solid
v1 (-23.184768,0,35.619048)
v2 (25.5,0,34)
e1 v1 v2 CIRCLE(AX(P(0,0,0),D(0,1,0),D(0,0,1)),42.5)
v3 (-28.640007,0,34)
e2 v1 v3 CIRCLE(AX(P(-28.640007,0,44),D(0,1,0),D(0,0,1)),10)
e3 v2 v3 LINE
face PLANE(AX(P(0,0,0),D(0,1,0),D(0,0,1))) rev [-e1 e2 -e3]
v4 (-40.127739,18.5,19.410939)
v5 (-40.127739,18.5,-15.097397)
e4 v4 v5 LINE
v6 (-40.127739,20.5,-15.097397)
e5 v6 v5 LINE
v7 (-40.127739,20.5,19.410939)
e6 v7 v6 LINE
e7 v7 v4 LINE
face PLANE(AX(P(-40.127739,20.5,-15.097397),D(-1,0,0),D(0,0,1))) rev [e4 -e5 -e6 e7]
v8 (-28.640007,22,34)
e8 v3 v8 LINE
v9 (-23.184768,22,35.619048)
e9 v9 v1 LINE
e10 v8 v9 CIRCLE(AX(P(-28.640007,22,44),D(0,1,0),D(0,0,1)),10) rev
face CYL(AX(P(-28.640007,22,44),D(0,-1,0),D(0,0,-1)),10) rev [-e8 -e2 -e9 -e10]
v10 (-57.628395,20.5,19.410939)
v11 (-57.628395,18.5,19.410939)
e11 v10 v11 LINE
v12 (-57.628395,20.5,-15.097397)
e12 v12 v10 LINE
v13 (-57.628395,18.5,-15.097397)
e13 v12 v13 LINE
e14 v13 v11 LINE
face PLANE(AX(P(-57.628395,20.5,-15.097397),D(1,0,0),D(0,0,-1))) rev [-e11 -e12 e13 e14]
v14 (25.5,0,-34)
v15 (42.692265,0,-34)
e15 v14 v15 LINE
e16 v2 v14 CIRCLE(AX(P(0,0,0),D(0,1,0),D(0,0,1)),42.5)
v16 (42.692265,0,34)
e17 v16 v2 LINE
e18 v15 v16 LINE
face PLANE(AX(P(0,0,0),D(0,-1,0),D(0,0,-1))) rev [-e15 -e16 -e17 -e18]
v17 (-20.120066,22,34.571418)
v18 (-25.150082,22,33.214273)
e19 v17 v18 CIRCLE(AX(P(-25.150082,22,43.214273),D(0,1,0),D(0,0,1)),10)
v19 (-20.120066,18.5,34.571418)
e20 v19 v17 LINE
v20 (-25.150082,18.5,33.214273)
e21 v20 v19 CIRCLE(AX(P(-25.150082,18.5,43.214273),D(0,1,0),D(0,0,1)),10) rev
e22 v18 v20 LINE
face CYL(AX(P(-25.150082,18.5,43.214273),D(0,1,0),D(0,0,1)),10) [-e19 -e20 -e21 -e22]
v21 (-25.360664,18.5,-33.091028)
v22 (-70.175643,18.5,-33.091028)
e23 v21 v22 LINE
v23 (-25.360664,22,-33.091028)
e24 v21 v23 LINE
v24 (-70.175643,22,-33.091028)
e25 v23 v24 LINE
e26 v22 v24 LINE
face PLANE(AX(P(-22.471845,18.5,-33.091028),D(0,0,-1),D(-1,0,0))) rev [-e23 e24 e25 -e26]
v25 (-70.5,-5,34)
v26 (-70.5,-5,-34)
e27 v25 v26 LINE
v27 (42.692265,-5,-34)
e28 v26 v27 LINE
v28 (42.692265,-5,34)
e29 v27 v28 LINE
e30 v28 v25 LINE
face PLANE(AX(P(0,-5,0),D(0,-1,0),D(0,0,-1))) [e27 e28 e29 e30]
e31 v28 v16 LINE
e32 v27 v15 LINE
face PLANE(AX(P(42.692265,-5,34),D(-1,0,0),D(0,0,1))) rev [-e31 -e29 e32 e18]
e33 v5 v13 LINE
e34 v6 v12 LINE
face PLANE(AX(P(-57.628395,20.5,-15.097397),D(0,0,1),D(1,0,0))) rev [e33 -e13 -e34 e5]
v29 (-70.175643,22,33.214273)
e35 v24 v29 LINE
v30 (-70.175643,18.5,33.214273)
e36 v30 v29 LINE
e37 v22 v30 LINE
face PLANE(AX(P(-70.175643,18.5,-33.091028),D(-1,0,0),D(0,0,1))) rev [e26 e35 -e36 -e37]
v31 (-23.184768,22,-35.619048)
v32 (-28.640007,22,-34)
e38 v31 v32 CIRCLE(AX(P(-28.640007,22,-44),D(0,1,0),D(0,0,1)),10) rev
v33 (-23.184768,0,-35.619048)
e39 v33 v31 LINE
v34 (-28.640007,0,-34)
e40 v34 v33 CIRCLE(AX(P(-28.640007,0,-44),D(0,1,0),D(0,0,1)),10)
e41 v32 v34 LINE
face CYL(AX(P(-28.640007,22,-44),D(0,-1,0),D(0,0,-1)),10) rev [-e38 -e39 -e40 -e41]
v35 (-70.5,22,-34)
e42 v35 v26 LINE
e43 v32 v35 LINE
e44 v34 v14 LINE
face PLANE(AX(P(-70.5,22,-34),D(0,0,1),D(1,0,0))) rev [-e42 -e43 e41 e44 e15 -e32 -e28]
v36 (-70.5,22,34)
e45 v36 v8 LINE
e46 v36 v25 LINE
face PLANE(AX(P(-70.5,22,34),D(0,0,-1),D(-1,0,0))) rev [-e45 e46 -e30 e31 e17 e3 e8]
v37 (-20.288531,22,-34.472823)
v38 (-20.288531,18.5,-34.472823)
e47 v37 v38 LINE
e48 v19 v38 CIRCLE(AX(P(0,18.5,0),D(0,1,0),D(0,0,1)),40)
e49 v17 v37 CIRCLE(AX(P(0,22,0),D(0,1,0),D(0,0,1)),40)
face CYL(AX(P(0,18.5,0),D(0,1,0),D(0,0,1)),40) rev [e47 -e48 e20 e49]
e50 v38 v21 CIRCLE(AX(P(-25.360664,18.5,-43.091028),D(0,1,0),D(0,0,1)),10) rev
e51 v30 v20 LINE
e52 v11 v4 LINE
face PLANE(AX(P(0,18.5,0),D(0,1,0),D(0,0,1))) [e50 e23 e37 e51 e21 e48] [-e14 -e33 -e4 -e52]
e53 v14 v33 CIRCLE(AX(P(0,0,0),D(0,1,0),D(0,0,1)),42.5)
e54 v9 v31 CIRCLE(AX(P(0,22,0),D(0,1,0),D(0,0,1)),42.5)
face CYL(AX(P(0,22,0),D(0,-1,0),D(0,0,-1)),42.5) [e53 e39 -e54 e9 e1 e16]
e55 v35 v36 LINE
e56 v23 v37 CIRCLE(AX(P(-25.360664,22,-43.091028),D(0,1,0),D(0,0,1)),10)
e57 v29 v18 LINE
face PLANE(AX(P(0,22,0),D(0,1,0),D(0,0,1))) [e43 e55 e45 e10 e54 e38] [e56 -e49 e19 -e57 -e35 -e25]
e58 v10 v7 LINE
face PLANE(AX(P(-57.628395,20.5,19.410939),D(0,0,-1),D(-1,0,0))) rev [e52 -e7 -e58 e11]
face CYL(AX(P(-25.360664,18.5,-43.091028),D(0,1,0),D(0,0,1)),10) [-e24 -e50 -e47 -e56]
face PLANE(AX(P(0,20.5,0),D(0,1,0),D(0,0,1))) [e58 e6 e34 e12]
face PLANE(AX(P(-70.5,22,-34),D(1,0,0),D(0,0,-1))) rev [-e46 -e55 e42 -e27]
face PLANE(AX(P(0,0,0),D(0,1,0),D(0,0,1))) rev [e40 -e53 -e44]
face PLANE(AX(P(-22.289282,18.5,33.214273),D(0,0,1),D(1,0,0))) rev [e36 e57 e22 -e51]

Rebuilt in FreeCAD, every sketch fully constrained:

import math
import FreeCAD as App
import Part
import Sketcher
from FreeCAD import Vector


def edges_at(feature, points):
    """Names of the edges that pass closest to the given points."""
    edges = feature.Shape.Edges
    near = lambda p: min(range(len(edges)), key=lambda i: edges[i].distToShape(Part.Vertex(*p))[0])
    return sorted({f"Edge{near(p) + 1}" for p in points})


def add_polygon(sketch, points):
    """Adds a closed chain of lines whose ends are joined by coincident constraints."""
    first, n = sketch.GeometryCount, len(points)
    for a, b in zip(points, points[1:] + points[:1]):
        sketch.addGeometry(Part.LineSegment(App.Vector(*a, 0), App.Vector(*b, 0)), False)
    for i in range(n):
        sketch.addConstraint(Sketcher.Constraint("Coincident", first + i, 2, first + (i + 1) % n, 1))

doc = App.newDocument("Part")
body = doc.addObject("PartDesign::Body", "Body")

# Sketch on XZ plane
sketch1 = doc.addObject("Sketcher::SketchObject", "Sketch")
body.addObject(sketch1)
sketch1.AttachmentSupport = (doc.XZ_Plane, [""])
sketch1.MapMode = "FlatFace"
sketch1.addGeometry(Part.LineSegment(Vector(-26, -34, 0), Vector(-70, -34, 0)), False)
sketch1.addGeometry(Part.LineSegment(Vector(-70, -34, 0), Vector(-70, 34, 0)), False)
sketch1.addGeometry(Part.LineSegment(Vector(-70, 34, 0), Vector(-26, 34, 0)), False)
sketch1.addGeometry(Part.ArcOfCircle(Part.Circle(Vector(0, 0, 0), Vector(0, 0, 1), 42), math.radians(-127), math.radians(127)), False)
sketch1.addConstraint(Sketcher.Constraint("Coincident", 0, 2, 1, 1))
sketch1.addConstraint(Sketcher.Constraint("Coincident", 1, 2, 2, 1))
sketch1.addConstraint(Sketcher.Constraint("Coincident", 2, 2, 3, 2))
sketch1.addConstraint(Sketcher.Constraint("Coincident", 3, 1, 0, 1))
sketch1.addConstraint(Sketcher.Constraint("Horizontal", 0))
sketch1.addConstraint(Sketcher.Constraint("Vertical", 1))
sketch1.addConstraint(Sketcher.Constraint("Horizontal", 2))
sketch1.addConstraint(Sketcher.Constraint("Coincident", 3, 3, -1, 1))
sketch1.addConstraint(Sketcher.Constraint("Vertical", 2, 2, 3, 1))
sketch1.addConstraint(Sketcher.Constraint("Radius", 3, 42.5))
sketch1.addConstraint(Sketcher.Constraint("DistanceX", 0, 2, 0, 1, 45.0))
sketch1.addConstraint(Sketcher.Constraint("DistanceY", 1, 1, 1, 2, 68.0))
pad1 = doc.addObject("PartDesign::Pad", "Pad")
body.addObject(pad1)
pad1.Profile = sketch1
pad1.Length = 22
pad1.Reversed = True
doc.recompute()

fillet = doc.addObject("PartDesign::Fillet", "Fillet")
body.addObject(fillet)
fillet.Base = (pad1, edges_at(pad1, [(-25.5, 11, -34), (-25.5, 11, 34)]))
fillet.Radius = 10

# Sketch on XZ plane
sketch2 = doc.addObject("Sketcher::SketchObject", "Sketch001")
body.addObject(sketch2)
sketch2.AttachmentSupport = (doc.XZ_Plane, [""])
sketch2.MapMode = "FlatFace"
sketch2.AttachmentOffset = App.Placement(Vector(0, 0, -22), App.Rotation())
sketch2.addGeometry(Part.LineSegment(Vector(-22, -33, 0), Vector(-70, -33, 0)), False)
sketch2.addGeometry(Part.LineSegment(Vector(-70, -33, 0), Vector(-70, 33, 0)), False)
sketch2.addGeometry(Part.LineSegment(Vector(-70, 33, 0), Vector(-22, 33, 0)), False)
sketch2.addGeometry(Part.ArcOfCircle(Part.Circle(Vector(0, 0, 0), Vector(0, 0, 1), 40), math.radians(-124), math.radians(124)), False)
sketch2.addConstraint(Sketcher.Constraint("Coincident", 0, 2, 1, 1))
sketch2.addConstraint(Sketcher.Constraint("Coincident", 1, 2, 2, 1))
sketch2.addConstraint(Sketcher.Constraint("Coincident", 2, 2, 3, 2))
sketch2.addConstraint(Sketcher.Constraint("Coincident", 3, 1, 0, 1))
sketch2.addConstraint(Sketcher.Constraint("Horizontal", 0))
sketch2.addConstraint(Sketcher.Constraint("Vertical", 1))
sketch2.addConstraint(Sketcher.Constraint("Horizontal", 2))
sketch2.addConstraint(Sketcher.Constraint("Coincident", 3, 3, -1, 1))
sketch2.addConstraint(Sketcher.Constraint("Radius", 3, 40.0))
sketch2.addConstraint(Sketcher.Constraint("DistanceY", 1, 1, 1, 2, 66.305301))
sketch2.addConstraint(Sketcher.Constraint("DistanceX", 2, 1, 2, 2, 47.886361))
sketch2.addConstraint(Sketcher.Constraint("DistanceX", 0, 2, 0, 1, 47.703798))
pocket1 = doc.addObject("PartDesign::Pocket", "Pocket")
body.addObject(pocket1)
pocket1.Profile = sketch2
pocket1.Length = 3.5
pocket1.Reversed = True
doc.recompute()

fillet2 = doc.addObject("PartDesign::Fillet", "Fillet001")
body.addObject(fillet2)
fillet2.Base = (pocket1, edges_at(pocket1, [(-22.472, 20.25, -33.091), (-22.289, 20.25, 33.214)]))
fillet2.Radius = 10

# Sketch on XZ plane
sketch3 = doc.addObject("Sketcher::SketchObject", "Sketch002")
body.addObject(sketch3)
sketch3.AttachmentSupport = (doc.XZ_Plane, [""])
sketch3.MapMode = "FlatFace"
sketch3.AttachmentOffset = App.Placement(Vector(0, 0, -18.5), App.Rotation())
add_polygon(sketch3, [(-58, -15), (-58, 19), (-40, 19), (-40, -15)])  # lines 0-3
sketch3.addConstraint(Sketcher.Constraint("Vertical", 0))
sketch3.addConstraint(Sketcher.Constraint("Horizontal", 1))
sketch3.addConstraint(Sketcher.Constraint("Vertical", 2))
sketch3.addConstraint(Sketcher.Constraint("Horizontal", 3))
sketch3.addConstraint(Sketcher.Constraint("DistanceX", 1, 1, 1, 2, 17.500656))
sketch3.addConstraint(Sketcher.Constraint("DistanceY", 0, 1, 0, 2, 34.508335))
sketch3.addConstraint(Sketcher.Constraint("DistanceY", -1, 1, 0, 2, 19.410939))
sketch3.addConstraint(Sketcher.Constraint("DistanceX", 1, 2, -1, 1, 40.127739))
pad2 = doc.addObject("PartDesign::Pad", "Pad001")
body.addObject(pad2)
pad2.Profile = sketch3
pad2.Length = 2
pad2.Reversed = True

# Sketch on XZ plane
sketch4 = doc.addObject("Sketcher::SketchObject", "Sketch003")
body.addObject(sketch4)
sketch4.AttachmentSupport = (doc.XZ_Plane, [""])
sketch4.MapMode = "FlatFace"
add_polygon(sketch4, [(-70, 34), (-70, -34), (43, -34), (43, 34)])  # lines 0-3
sketch4.addConstraint(Sketcher.Constraint("Vertical", 0))
sketch4.addConstraint(Sketcher.Constraint("Horizontal", 1))
sketch4.addConstraint(Sketcher.Constraint("Vertical", 2))
sketch4.addConstraint(Sketcher.Constraint("Horizontal", 3))
sketch4.addConstraint(Sketcher.Constraint("DistanceY", 0, 2, 0, 1, 68.0))
sketch4.addConstraint(Sketcher.Constraint("DistanceY", 0, 2, -1, 1, 34.0))
sketch4.addConstraint(Sketcher.Constraint("DistanceX", 0, 2, -1, 1, 70.5))
sketch4.addConstraint(Sketcher.Constraint("DistanceX", 1, 1, 1, 2, 113.192265))
pad3 = doc.addObject("PartDesign::Pad", "Pad002")
body.addObject(pad3)
pad3.Profile = sketch4
pad3.Length = 5

doc.recompute()
